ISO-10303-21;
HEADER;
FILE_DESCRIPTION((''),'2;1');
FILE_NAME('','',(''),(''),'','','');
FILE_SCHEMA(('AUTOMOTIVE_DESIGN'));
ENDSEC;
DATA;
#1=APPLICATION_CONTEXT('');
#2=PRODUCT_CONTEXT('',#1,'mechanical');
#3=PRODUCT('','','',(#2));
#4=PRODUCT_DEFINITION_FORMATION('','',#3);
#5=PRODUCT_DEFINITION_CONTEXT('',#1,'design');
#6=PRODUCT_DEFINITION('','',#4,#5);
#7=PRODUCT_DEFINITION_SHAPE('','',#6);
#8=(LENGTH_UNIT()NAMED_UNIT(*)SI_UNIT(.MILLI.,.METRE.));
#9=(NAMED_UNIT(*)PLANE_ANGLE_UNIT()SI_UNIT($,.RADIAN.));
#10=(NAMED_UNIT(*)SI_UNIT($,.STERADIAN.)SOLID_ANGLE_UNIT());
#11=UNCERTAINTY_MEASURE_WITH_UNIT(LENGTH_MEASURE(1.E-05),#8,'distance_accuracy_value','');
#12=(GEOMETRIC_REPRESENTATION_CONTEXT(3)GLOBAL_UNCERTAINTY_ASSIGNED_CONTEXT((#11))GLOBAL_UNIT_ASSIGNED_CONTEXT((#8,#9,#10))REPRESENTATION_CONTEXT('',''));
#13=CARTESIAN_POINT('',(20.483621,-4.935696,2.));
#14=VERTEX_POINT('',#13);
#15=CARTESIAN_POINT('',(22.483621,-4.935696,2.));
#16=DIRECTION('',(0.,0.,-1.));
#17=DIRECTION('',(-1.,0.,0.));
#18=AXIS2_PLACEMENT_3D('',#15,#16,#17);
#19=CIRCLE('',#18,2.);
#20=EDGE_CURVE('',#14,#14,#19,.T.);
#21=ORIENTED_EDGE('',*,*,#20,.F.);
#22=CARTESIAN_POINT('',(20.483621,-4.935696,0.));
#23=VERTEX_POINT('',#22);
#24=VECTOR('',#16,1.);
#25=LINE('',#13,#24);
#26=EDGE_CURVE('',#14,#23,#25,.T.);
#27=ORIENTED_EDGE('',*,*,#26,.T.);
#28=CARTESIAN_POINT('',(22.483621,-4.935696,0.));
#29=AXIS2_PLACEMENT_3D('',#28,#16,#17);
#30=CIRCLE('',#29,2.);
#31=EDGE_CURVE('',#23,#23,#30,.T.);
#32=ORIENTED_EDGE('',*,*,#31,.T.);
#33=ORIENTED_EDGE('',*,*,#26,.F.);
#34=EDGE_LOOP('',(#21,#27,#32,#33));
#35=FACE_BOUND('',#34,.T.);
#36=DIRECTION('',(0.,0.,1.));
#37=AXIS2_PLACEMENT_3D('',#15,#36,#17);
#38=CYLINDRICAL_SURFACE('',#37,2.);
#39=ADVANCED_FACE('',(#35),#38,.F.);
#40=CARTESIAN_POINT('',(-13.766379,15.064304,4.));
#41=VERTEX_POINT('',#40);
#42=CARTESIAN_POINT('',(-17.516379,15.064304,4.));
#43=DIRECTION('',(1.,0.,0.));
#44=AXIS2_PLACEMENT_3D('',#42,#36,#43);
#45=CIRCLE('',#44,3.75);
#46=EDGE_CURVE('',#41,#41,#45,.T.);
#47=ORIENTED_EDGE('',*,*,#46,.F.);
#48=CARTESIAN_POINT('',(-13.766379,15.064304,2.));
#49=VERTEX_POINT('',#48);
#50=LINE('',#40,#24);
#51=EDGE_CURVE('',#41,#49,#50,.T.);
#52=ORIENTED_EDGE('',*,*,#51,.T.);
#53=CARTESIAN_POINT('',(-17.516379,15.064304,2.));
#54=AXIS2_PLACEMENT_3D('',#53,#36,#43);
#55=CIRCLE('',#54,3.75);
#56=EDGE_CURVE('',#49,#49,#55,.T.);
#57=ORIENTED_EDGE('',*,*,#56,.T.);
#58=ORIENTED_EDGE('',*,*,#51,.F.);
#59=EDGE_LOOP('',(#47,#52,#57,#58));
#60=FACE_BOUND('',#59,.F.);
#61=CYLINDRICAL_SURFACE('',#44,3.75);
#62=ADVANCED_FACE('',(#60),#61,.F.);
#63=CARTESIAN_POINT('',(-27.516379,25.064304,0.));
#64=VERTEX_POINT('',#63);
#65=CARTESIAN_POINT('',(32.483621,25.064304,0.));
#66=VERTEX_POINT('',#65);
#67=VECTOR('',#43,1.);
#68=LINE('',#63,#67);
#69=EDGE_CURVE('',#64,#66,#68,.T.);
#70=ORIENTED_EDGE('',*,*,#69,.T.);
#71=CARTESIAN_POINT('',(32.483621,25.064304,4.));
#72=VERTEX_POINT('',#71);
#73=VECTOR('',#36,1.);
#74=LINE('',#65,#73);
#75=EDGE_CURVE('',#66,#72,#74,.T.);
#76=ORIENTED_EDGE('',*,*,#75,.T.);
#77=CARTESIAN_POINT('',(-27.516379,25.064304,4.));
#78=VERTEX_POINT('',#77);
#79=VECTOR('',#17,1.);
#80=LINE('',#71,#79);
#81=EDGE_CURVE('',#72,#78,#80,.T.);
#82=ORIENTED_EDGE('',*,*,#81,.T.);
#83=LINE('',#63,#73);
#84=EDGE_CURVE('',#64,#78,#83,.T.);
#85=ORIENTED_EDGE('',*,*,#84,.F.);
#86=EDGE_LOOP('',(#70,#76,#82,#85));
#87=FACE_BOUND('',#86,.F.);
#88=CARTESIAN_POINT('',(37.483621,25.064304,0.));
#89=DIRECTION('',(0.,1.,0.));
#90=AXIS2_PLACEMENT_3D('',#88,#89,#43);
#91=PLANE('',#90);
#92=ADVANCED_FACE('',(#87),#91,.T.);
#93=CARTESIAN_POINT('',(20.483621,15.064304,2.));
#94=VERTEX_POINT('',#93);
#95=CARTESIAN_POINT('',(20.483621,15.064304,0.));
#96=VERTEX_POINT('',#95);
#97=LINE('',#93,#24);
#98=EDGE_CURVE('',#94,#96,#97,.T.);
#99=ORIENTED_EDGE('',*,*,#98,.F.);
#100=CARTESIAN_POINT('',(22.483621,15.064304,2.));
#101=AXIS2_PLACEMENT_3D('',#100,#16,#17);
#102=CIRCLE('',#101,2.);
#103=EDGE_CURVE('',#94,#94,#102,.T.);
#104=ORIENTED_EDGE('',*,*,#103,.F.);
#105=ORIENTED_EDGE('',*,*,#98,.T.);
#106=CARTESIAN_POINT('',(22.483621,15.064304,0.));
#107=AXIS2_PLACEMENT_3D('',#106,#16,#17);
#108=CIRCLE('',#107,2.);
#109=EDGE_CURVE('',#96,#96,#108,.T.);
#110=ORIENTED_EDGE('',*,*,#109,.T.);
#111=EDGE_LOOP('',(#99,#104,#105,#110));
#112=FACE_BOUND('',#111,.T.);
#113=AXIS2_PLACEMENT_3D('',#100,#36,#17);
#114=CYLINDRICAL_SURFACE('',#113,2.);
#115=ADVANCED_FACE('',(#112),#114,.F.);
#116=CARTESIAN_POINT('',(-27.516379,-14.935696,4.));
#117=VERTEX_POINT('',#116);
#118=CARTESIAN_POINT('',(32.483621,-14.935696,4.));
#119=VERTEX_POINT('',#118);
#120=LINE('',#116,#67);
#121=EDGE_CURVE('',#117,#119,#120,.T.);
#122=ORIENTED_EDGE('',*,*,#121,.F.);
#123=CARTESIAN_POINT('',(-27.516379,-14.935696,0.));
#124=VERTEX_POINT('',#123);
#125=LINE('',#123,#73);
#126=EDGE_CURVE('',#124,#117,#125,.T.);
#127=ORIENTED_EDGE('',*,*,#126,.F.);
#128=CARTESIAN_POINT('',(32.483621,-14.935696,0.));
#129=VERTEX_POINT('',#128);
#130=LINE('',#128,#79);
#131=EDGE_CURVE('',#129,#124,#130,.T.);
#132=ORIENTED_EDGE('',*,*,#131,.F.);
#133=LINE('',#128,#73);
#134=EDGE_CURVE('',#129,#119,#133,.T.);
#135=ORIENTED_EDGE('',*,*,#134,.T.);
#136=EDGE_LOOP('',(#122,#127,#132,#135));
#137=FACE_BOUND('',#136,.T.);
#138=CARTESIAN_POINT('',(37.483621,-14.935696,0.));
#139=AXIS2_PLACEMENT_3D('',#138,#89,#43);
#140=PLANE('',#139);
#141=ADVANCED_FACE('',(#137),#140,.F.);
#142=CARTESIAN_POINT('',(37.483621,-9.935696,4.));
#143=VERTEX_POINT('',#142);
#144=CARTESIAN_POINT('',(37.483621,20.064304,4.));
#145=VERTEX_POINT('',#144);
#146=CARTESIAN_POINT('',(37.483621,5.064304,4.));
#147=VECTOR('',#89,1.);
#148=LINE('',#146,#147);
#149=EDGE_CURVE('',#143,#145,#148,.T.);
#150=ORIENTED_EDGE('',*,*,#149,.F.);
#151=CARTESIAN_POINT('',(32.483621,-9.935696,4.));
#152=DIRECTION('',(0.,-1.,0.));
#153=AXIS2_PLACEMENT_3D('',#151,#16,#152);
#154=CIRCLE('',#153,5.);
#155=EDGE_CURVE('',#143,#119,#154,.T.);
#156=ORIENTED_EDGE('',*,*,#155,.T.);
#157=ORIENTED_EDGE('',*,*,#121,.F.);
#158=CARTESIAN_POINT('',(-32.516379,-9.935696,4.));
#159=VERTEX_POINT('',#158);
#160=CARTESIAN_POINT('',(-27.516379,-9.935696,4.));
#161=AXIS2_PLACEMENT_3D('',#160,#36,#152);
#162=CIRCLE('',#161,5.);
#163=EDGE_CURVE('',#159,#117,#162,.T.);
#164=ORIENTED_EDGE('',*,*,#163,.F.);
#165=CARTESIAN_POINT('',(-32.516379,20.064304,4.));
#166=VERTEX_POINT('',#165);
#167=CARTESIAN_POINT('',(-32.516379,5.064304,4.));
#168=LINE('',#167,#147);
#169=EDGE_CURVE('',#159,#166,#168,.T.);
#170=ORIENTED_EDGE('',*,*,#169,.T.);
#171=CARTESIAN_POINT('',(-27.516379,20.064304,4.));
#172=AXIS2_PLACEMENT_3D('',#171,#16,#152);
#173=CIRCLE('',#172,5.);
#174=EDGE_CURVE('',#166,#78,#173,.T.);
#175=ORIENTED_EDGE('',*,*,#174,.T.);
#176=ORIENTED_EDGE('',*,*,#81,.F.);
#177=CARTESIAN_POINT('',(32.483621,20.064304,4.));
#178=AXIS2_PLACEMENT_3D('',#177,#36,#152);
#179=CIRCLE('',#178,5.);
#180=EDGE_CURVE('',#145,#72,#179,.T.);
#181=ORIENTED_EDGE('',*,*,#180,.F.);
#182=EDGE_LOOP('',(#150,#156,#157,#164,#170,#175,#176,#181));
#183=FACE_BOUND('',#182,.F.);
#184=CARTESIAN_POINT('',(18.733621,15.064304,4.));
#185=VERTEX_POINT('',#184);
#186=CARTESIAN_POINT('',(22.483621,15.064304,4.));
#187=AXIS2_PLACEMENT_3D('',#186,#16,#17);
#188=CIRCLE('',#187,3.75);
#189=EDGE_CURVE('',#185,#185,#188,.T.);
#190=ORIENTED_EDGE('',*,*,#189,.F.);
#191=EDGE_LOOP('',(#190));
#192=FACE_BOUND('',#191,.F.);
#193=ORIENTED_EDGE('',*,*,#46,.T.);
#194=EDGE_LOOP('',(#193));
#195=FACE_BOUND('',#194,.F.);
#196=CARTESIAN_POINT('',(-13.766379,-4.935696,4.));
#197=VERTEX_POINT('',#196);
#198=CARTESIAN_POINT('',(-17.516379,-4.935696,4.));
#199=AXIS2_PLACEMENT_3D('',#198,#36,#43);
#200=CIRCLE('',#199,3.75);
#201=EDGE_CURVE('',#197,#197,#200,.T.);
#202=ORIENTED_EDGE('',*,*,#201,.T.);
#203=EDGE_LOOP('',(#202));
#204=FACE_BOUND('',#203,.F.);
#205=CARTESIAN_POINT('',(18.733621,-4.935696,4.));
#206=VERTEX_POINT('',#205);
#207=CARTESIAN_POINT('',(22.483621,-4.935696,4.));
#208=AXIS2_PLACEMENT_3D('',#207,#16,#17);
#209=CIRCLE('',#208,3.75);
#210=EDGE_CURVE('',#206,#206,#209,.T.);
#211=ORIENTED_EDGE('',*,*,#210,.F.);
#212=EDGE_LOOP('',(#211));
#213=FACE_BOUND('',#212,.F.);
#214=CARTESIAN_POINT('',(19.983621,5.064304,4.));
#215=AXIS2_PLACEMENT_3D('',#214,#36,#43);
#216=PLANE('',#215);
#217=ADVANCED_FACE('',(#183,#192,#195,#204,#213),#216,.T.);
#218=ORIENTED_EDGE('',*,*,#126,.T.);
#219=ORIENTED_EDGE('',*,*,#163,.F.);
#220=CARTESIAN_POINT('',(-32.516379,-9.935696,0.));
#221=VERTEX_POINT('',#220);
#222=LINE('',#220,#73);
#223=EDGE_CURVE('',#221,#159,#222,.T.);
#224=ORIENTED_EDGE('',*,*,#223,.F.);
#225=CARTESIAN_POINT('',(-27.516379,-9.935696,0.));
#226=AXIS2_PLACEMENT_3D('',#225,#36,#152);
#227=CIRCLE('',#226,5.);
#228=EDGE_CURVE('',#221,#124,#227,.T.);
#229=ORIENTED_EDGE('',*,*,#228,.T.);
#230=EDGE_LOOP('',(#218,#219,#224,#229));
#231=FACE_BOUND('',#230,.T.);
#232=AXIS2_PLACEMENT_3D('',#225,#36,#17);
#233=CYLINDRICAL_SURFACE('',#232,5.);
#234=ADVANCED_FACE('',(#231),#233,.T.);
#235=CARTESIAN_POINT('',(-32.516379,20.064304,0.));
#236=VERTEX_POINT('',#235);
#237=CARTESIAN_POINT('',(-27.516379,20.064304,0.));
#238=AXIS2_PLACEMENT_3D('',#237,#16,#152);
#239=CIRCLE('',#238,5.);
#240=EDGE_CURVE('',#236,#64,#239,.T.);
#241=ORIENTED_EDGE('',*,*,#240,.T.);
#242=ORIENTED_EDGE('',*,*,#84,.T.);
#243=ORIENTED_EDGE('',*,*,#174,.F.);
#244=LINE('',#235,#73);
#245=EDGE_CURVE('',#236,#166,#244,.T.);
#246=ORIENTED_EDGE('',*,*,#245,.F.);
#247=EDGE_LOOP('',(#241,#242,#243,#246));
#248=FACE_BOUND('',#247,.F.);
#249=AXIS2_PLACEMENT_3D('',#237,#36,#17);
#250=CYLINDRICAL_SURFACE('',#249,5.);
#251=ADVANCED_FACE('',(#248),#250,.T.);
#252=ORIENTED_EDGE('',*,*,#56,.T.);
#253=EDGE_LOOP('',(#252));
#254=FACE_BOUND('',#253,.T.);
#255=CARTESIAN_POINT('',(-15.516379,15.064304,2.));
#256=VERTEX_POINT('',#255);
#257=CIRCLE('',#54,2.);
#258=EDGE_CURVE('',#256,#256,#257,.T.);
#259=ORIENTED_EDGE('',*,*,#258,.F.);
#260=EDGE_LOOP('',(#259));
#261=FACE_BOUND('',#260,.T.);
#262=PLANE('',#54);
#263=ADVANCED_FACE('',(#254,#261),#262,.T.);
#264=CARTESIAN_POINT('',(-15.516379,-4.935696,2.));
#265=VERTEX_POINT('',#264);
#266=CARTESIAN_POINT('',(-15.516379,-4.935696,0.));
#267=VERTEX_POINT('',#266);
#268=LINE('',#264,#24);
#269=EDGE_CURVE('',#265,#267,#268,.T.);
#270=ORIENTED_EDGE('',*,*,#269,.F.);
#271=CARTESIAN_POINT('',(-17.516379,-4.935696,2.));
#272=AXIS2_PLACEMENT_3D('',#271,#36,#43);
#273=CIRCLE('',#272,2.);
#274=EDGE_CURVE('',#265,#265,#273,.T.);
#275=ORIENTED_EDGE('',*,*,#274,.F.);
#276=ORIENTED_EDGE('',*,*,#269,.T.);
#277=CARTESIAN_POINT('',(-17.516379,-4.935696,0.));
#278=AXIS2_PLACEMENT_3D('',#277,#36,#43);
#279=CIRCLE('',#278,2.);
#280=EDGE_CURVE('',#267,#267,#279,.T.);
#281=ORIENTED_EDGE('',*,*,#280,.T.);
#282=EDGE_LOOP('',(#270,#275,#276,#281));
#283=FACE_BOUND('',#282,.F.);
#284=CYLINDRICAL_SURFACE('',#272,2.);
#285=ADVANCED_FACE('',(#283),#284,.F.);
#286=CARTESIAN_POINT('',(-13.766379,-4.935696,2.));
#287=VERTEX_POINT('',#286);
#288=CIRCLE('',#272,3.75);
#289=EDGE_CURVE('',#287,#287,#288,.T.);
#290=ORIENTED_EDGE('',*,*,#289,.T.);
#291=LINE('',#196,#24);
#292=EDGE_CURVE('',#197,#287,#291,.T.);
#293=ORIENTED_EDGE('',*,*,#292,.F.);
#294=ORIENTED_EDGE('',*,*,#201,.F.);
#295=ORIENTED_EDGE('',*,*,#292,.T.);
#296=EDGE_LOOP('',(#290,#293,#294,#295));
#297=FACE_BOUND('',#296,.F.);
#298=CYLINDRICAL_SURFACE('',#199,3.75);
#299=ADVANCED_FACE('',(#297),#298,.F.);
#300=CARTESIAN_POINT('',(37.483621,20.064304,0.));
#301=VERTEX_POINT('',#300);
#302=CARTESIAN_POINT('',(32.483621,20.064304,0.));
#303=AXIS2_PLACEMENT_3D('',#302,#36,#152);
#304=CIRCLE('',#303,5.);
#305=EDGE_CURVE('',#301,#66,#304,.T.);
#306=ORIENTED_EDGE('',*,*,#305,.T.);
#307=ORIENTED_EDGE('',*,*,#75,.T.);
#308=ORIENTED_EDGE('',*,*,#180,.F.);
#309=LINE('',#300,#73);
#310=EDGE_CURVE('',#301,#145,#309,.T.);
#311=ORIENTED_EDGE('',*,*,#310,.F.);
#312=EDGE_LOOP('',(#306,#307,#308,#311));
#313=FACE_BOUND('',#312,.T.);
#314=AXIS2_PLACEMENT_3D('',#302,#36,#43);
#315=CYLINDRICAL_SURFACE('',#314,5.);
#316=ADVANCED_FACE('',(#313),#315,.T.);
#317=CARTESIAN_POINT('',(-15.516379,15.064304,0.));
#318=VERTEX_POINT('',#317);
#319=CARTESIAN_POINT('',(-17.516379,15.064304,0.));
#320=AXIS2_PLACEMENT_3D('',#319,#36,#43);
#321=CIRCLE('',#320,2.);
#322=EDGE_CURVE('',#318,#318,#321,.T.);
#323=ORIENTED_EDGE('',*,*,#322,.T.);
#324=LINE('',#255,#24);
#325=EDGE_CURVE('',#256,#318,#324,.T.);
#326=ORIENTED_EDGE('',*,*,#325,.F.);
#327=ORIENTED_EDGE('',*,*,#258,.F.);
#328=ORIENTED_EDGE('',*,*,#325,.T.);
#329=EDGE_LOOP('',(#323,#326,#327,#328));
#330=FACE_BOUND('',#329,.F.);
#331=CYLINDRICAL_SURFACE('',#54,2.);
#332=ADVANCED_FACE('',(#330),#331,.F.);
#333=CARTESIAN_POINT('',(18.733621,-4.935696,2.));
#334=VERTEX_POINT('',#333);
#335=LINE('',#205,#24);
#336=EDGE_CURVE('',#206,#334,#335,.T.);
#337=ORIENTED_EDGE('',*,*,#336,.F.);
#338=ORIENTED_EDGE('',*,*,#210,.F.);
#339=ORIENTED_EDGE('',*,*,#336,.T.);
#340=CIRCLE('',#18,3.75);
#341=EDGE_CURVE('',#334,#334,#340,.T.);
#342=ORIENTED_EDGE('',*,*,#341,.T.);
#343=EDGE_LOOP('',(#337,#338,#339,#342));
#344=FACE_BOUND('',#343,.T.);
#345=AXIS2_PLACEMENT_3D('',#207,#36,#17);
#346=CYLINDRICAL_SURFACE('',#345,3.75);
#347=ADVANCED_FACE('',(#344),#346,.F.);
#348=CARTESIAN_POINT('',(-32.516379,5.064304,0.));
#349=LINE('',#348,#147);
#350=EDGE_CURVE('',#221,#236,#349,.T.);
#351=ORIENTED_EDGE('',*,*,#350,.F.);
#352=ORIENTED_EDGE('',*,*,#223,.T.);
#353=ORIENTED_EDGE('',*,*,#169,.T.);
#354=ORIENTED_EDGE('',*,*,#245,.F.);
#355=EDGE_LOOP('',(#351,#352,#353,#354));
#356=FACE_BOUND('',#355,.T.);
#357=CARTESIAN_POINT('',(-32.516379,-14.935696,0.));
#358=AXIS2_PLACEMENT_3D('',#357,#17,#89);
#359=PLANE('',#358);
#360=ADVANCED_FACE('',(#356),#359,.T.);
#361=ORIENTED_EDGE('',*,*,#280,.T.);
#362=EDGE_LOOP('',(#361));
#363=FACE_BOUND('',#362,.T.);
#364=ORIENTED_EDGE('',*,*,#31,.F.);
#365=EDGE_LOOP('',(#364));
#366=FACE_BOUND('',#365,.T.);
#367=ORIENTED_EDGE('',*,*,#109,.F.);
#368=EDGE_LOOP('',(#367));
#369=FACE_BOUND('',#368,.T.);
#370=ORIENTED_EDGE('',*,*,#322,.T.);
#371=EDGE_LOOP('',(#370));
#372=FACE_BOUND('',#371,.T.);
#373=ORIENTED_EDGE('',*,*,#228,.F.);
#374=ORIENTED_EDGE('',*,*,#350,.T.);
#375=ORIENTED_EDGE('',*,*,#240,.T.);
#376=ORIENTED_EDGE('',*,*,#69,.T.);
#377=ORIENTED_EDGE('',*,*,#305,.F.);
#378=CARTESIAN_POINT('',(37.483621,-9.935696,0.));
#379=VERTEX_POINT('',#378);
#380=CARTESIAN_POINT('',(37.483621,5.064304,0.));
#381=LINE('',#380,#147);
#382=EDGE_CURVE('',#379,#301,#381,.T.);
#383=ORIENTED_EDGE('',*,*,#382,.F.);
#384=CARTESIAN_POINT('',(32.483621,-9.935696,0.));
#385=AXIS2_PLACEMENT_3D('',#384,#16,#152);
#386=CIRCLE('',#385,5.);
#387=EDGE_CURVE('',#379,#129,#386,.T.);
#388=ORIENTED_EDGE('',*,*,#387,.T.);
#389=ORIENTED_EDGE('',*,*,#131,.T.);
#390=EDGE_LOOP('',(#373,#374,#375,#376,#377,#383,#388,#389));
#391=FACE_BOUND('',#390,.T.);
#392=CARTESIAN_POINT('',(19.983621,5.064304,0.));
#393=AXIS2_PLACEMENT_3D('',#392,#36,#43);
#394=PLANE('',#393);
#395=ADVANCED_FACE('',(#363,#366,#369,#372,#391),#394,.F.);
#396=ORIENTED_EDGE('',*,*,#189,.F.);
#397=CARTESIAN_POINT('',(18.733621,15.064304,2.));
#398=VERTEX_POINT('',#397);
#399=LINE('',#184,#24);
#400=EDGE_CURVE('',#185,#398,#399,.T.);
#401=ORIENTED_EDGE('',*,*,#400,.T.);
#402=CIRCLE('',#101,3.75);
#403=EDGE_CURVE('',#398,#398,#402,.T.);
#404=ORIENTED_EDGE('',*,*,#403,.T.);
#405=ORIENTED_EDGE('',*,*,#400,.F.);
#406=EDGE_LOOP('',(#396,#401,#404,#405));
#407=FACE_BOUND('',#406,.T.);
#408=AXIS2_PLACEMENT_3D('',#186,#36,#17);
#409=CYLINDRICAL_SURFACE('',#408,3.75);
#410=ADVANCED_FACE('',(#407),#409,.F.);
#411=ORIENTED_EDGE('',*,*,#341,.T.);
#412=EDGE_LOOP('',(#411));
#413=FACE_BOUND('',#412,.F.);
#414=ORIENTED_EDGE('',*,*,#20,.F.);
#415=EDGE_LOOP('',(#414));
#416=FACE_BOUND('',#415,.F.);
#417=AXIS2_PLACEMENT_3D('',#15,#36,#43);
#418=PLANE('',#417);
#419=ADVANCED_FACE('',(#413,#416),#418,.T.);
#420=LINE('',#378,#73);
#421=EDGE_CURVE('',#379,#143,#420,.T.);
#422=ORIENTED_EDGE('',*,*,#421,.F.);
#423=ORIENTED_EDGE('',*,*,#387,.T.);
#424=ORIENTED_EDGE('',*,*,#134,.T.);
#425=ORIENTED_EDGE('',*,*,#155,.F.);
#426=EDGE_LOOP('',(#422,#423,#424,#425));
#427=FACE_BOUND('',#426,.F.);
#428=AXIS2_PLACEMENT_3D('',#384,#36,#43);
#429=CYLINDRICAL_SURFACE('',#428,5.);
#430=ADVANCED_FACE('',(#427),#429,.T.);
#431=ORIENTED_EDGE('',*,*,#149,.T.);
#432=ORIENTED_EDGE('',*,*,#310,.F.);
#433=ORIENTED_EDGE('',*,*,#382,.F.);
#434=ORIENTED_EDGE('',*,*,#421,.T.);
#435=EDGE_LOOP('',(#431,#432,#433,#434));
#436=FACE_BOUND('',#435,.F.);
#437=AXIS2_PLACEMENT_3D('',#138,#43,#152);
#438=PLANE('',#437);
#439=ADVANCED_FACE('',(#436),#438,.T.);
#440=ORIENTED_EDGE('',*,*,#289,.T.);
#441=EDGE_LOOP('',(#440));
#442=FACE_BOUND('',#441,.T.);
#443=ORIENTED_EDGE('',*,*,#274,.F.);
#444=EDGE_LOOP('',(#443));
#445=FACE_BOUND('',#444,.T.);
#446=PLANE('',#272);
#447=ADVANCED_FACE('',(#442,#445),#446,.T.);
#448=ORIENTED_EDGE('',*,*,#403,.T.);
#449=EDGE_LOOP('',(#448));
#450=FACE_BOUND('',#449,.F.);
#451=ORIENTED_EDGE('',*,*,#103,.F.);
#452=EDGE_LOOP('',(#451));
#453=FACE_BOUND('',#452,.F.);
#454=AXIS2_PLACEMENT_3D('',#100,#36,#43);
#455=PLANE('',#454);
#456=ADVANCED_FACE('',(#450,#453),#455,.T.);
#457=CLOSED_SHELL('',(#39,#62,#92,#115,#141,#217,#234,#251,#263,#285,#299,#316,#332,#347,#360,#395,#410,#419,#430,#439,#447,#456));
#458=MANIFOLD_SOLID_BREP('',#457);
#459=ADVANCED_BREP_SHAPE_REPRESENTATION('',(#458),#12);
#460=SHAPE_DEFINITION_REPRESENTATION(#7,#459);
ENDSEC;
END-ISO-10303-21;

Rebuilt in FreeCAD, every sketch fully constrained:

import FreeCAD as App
import Part
import Sketcher

V = App.Vector


def edges_at(feature, points):
    """Names of the edges that pass closest to the given points."""
    edges = feature.Shape.Edges
    near = lambda p: min(range(len(edges)), key=lambda i: edges[i].distToShape(Part.Vertex(*p))[0])
    return sorted({f"Edge{near(p) + 1}" for p in points})


def add_polygon(sketch, points):
    """Adds a closed chain of lines whose ends are joined by coincident constraints."""
    first, n = sketch.GeometryCount, len(points)
    for a, b in zip(points, points[1:] + points[:1]):
        sketch.addGeometry(Part.LineSegment(App.Vector(*a, 0), App.Vector(*b, 0)), False)
    for i in range(n):
        sketch.addConstraint(Sketcher.Constraint("Coincident", first + i, 2, first + (i + 1) % n, 1))

doc = App.newDocument("Part")
body = doc.addObject("PartDesign::Body", "Body")

sketch1 = body.newObject("Sketcher::SketchObject", "Sketch")
sketch1.AttachmentSupport = (doc.getObject("XY_Plane"), [""])
sketch1.MapMode = "FlatFace"
add_polygon(sketch1, [(-33, 25), (-33, -15), (2, -15), (2, 25)])
sketch1.addConstraint(Sketcher.Constraint("Vertical", 0))
sketch1.addConstraint(Sketcher.Constraint("Horizontal", 1))
sketch1.addConstraint(Sketcher.Constraint("Vertical", 2))
sketch1.addConstraint(Sketcher.Constraint("Horizontal", 3))
sketch1.addConstraint(Sketcher.Constraint("DistanceX", 1, 1, 1, 2, 35.0))
sketch1.addConstraint(Sketcher.Constraint("DistanceY", 0, 2, 0, 1, 40.0))
sketch1.addConstraint(Sketcher.Constraint("DistanceX", 0, 2, -1, 1, 32.516379))
sketch1.addConstraint(Sketcher.Constraint("DistanceY", 0, 2, -1, 1, 14.935696))
pad1 = body.newObject("PartDesign::Pad", "Pad")
pad1.Profile = sketch1
pad1.Length = 4
doc.recompute()

fillet = body.newObject("PartDesign::Fillet", "Fillet")
fillet.Base = (pad1, edges_at(pad1, [(-32.516, 25.064, 2), (-32.516, -14.936, 2)]))
fillet.Radius = 5

sketch2 = body.newObject("Sketcher::SketchObject", "Sketch001")
sketch2.AttachmentSupport = (doc.getObject("XY_Plane"), [""])
sketch2.MapMode = "FlatFace"
sketch2.AttachmentOffset = App.Placement(V(0, 0, 4), App.Rotation())
sketch2.addGeometry(Part.Circle(V(-17.5, -4.9, 0), V(0, 0, 1), 3.8), False)
sketch2.addGeometry(Part.Circle(V(-17.5, 15.1, 0), V(0, 0, 1), 3.8), False)
sketch2.addConstraint(Sketcher.Constraint("Equal", 0, 1))
sketch2.addConstraint(Sketcher.Constraint("Vertical", 0, 3, 1, 3))
sketch2.addConstraint(Sketcher.Constraint("Diameter", 0, 7.5))
sketch2.addConstraint(Sketcher.Constraint("DistanceY", 0, 3, 1, 3, 20.0))
sketch2.addConstraint(Sketcher.Constraint("DistanceX", 0, 3, -1, 1, 17.516379))
sketch2.addConstraint(Sketcher.Constraint("DistanceY", 0, 3, -1, 1, 4.935696))
pocket1 = body.newObject("PartDesign::Pocket", "Pocket")
pocket1.Profile = sketch2
pocket1.Length = 2

sketch3 = body.newObject("Sketcher::SketchObject", "Sketch002")
sketch3.AttachmentSupport = (doc.getObject("XY_Plane"), [""])
sketch3.MapMode = "FlatFace"
sketch3.AttachmentOffset = App.Placement(V(0, 0, 2), App.Rotation())
sketch3.addGeometry(Part.Circle(V(-17.5, 15.1, 0), V(0, 0, 1), 2), False)
sketch3.addConstraint(Sketcher.Constraint("Diameter", 0, 4.0))
sketch3.addConstraint(Sketcher.Constraint("DistanceX", 0, 3, -1, 1, 17.516379))
sketch3.addConstraint(Sketcher.Constraint("DistanceY", -1, 1, 0, 3, 15.064304))
pocket2 = body.newObject("PartDesign::Pocket", "Pocket001")
pocket2.Profile = sketch3
pocket2.Length = 5

sketch4 = body.newObject("Sketcher::SketchObject", "Sketch003")
sketch4.AttachmentSupport = (doc.getObject("XY_Plane"), [""])
sketch4.MapMode = "FlatFace"
sketch4.AttachmentOffset = App.Placement(V(0, 0, 2), App.Rotation())
sketch4.addGeometry(Part.Circle(V(-17.5, -4.9, 0), V(0, 0, 1), 2), False)
sketch4.addConstraint(Sketcher.Constraint("Diameter", 0, 4.0))
sketch4.addConstraint(Sketcher.Constraint("DistanceX", 0, 3, -1, 1, 17.516379))
sketch4.addConstraint(Sketcher.Constraint("DistanceY", 0, 3, -1, 1, 4.935696))
pocket3 = body.newObject("PartDesign::Pocket", "Pocket002")
pocket3.Profile = sketch4
pocket3.Length = 5
body2 = doc.addObject("PartDesign::Body", "Body001")
doc.recompute()

body2.BaseFeature = body
doc.recompute()

mirroring = doc.addObject("Part::Mirroring", "Mirroring")
mirroring.Source = body
mirroring.Base = V(2.483621, 5.064304, 2)
mirroring.Normal = V(1, 0, 0)
body3 = doc.addObject("PartDesign::Body", "Body002")
body3.BaseFeature = mirroring
boolean = body2.newObject("PartDesign::Boolean", "Boolean")
boolean.Type = "Fuse"
boolean.addObjects([body3])
doc.recompute()
mirroring.Visibility = False

doc.recompute()
